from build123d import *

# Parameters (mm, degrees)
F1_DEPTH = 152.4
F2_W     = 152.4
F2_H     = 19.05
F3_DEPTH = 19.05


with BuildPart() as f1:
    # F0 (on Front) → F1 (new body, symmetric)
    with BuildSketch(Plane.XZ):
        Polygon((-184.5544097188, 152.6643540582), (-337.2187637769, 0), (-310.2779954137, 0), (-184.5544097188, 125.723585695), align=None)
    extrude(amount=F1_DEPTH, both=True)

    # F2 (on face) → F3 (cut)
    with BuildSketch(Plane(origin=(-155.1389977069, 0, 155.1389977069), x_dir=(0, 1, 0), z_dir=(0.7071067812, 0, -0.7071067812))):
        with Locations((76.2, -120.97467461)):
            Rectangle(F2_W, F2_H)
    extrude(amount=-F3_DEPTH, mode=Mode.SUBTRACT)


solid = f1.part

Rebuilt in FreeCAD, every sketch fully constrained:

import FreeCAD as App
import Part
import Sketcher

V = App.Vector
Q = App.Units.Quantity


def add_polygon(sketch, points):
    """Adds a closed chain of lines whose ends are joined by coincident constraints."""
    first, n = sketch.GeometryCount, len(points)
    for a, b in zip(points, points[1:] + points[:1]):
        sketch.addGeometry(Part.LineSegment(App.Vector(*a, 0), App.Vector(*b, 0)), False)
    for i in range(n):
        sketch.addConstraint(Sketcher.Constraint("Coincident", first + i, 2, first + (i + 1) % n, 1))

doc = App.newDocument("Part")
body = doc.addObject("PartDesign::Body", "Body")

# Sketch on XZ plane
sketch1 = doc.addObject("Sketcher::SketchObject", "Sketch")
body.addObject(sketch1)
sketch1.AttachmentSupport = (doc.XZ_Plane, [""])
sketch1.MapMode = "FlatFace"
add_polygon(sketch1, [(-185, 153), (-337, 0), (-310, 0), (-185, 126)])  # lines 0-3
sketch1.addConstraint(Sketcher.Constraint("Horizontal", 1))
sketch1.addConstraint(Sketcher.Constraint("Vertical", 3))
sketch1.addConstraint(Sketcher.Constraint("PointOnObject", 0, 2, -1))
sketch1.addConstraint(Sketcher.Constraint("Parallel", 0, 2))
sketch1.addConstraint(Sketcher.Constraint("Equal", 1, 3))
sketch1.addConstraint(Sketcher.Constraint("Distance", 2, Q("7 in")))
sketch1.addConstraint(Sketcher.Constraint("Distance", 0, Q("8.5 in")))
sketch1.addConstraint(Sketcher.Constraint("DistanceX", 2, 2, -1, 1, 184.55441))
pad1 = doc.addObject("PartDesign::Pad", "Pad")
body.addObject(pad1)
pad1.Profile = sketch1
pad1.Length = Q("12 in")
pad1.Midplane = True

# Sketch on an angled plane
sketch2 = doc.addObject("Sketcher::SketchObject", "Sketch001")
body.addObject(sketch2)
sketch2.Placement = App.Placement(V(-155.138998, 0, 155.138998), App.Rotation(V(0, 1, 0), V(0.707106781, 0, 0.707106781), V(0.707106781, 0, -0.707106781), "ZXY"))
add_polygon(sketch2, [(0, -111), (0, -130), (152, -130), (152, -111)])  # lines 0-3
sketch2.addConstraint(Sketcher.Constraint("Vertical", 0))
sketch2.addConstraint(Sketcher.Constraint("Horizontal", 1))
sketch2.addConstraint(Sketcher.Constraint("Vertical", 2))
sketch2.addConstraint(Sketcher.Constraint("Horizontal", 3))
sketch2.addConstraint(Sketcher.Constraint("PointOnObject", 0, 2, -2))
sketch2.addConstraint(Sketcher.Constraint("DistanceX", 1, 1, 1, 2, Q("6 in")))
sketch2.addConstraint(Sketcher.Constraint("DistanceY", 0, 2, 0, 1, Q("0.75 in")))
sketch2.addConstraint(Sketcher.Constraint("DistanceY", 0, 2, -1, 1, 130.499675))
pocket1 = doc.addObject("PartDesign::Pocket", "Pocket")
body.addObject(pocket1)
pocket1.Profile = sketch2
pocket1.Length = Q("0.75 in")

doc.recompute()
